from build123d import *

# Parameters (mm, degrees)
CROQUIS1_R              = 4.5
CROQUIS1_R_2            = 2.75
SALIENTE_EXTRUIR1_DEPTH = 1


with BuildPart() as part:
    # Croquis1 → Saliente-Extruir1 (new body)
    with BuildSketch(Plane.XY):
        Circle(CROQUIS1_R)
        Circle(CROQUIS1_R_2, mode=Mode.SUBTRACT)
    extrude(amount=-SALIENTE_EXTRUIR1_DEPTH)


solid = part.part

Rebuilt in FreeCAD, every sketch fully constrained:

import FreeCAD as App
import Part
import Sketcher

V = App.Vector
Q = App.Units.Quantity

doc = App.newDocument("Part")
body = doc.addObject("PartDesign::Body", "Body")

sketch1 = body.newObject("Sketcher::SketchObject", "Sketch")
sketch1.AttachmentSupport = (doc.getObject("XY_Plane"), [""])
sketch1.MapMode = "FlatFace"
sketch1.addGeometry([
    Part.Circle(V(0, 0, 0), V(0, 0, 1), 4.5),
    Part.Circle(V(0, 0, 0), V(0, 0, 1), 2.8),
], False)
sketch1.addConstraint([
    Sketcher.Constraint("Coincident", 0, 3, -1, 1),
    Sketcher.Constraint("Coincident", 1, 3, -1, 1),
    Sketcher.Constraint("Diameter", 0, Q("9 mm")),
    Sketcher.Constraint("Diameter", 1, Q("5.5 mm")),
])
pad1 = body.newObject("PartDesign::Pad", "Pad")
pad1.Profile = sketch1
pad1.Length = 1
pad1.Reversed = True

doc.recompute()
